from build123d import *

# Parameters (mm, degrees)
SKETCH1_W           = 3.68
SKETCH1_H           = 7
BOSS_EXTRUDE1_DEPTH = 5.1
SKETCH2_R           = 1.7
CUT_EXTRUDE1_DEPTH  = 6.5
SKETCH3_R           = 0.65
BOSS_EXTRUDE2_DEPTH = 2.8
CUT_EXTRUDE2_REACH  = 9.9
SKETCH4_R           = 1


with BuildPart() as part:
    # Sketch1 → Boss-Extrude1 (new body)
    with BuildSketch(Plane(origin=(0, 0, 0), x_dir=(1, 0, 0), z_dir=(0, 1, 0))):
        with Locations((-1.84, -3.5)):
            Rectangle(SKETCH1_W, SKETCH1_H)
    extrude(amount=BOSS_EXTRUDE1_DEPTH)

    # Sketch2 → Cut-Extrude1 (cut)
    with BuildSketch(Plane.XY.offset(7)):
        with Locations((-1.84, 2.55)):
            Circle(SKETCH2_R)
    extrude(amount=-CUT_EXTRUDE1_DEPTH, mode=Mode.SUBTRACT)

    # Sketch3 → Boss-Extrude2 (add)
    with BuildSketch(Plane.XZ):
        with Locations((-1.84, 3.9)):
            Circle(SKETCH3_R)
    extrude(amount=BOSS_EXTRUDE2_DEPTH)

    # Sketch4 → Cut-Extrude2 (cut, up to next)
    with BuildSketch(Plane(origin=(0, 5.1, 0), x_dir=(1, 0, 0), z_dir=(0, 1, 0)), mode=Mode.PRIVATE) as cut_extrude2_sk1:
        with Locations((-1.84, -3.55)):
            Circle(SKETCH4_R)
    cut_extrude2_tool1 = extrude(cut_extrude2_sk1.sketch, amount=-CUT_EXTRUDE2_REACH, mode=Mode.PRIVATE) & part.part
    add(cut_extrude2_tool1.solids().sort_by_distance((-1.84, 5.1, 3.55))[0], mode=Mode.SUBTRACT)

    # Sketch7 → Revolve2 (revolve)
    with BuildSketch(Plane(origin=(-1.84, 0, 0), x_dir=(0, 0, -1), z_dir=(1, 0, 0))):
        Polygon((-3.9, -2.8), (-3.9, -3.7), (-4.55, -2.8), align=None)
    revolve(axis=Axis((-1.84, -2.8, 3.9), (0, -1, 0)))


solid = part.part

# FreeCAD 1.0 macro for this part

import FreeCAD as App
import Part
import Sketcher
Q = App.Units.Quantity

doc = App.newDocument("Part")
body = doc.addObject("PartDesign::Body", "Body")

# Sketch on XZ plane
sketch1 = body.newObject("Sketcher::SketchObject", "Sketch")
sketch1.AttachmentSupport = (doc.getObject("XZ_Plane"), [""])
sketch1.MapMode = "FlatFace"
sketch1.addGeometry([
    Part.LineSegment(App.Vector(-3.7, 0, 0), App.Vector(-3.7, 7, 0)),
    Part.LineSegment(App.Vector(-3.7, 7, 0), App.Vector(0, 7, 0)),
    Part.LineSegment(App.Vector(0, 7, 0), App.Vector(0, 0, 0)),
    Part.LineSegment(App.Vector(0, 0, 0), App.Vector(-3.7, 0, 0)),
], False)
sketch1.addConstraint([
    Sketcher.Constraint("Coincident", 0, 2, 1, 1),
    Sketcher.Constraint("Coincident", 1, 2, 2, 1),
    Sketcher.Constraint("Coincident", 2, 2, 3, 1),
    Sketcher.Constraint("Coincident", 3, 2, 0, 1),
    Sketcher.Constraint("Vertical", 0),
    Sketcher.Constraint("Horizontal", 1),
    Sketcher.Constraint("Vertical", 2),
    Sketcher.Constraint("Horizontal", 3),
    Sketcher.Constraint("Coincident", 2, 2, -1, 1),
    Sketcher.Constraint("DistanceY", 0, 1, 0, 2, Q("7 mm")),
    Sketcher.Constraint("DistanceX", 1, 1, 1, 2, Q("3.68 mm")),
])
pad1 = body.newObject("PartDesign::Pad", "Pad")
pad1.Profile = sketch1
pad1.Length = 5.1
pad1.Reversed = True

# Sketch on XY plane
sketch2 = body.newObject("Sketcher::SketchObject", "Sketch001")
sketch2.AttachmentSupport = (doc.getObject("XY_Plane"), [""])
sketch2.MapMode = "FlatFace"
sketch2.AttachmentOffset = App.Placement(App.Vector(0, 0, 7), App.Rotation())
sketch2.addGeometry(Part.Circle(App.Vector(-1.8, 2.5, 0), App.Vector(0, 0, 1), 1.7), False)
sketch2.addConstraint([
    Sketcher.Constraint("Diameter", 0, Q("3.4 mm")),
    Sketcher.Constraint("DistanceX", 0, 3, -1, 1, Q("1.84 mm")),
    Sketcher.Constraint("DistanceY", -1, 1, 0, 3, Q("2.55 mm")),
])
pocket1 = body.newObject("PartDesign::Pocket", "Pocket")
pocket1.Profile = sketch2
pocket1.Length = 6.5

# Sketch on XZ plane
sketch3 = body.newObject("Sketcher::SketchObject", "Sketch002")
sketch3.AttachmentSupport = (doc.getObject("XZ_Plane"), [""])
sketch3.MapMode = "FlatFace"
sketch3.addGeometry(Part.Circle(App.Vector(-1.8, 3.9, 0), App.Vector(0, 0, 1), 0.7), False)
sketch3.addConstraint([
    Sketcher.Constraint("Diameter", 0, Q("1.3 mm")),
    Sketcher.Constraint("DistanceY", -1, 1, 0, 3, Q("3.9 mm")),
    Sketcher.Constraint("DistanceX", 0, 3, -1, 1, Q("1.84 mm")),
])
pad2 = body.newObject("PartDesign::Pad", "Pad001")
pad2.Profile = sketch3
pad2.Length = 2.8

# Sketch on XZ plane
sketch4 = body.newObject("Sketcher::SketchObject", "Sketch003")
sketch4.AttachmentSupport = (doc.getObject("XZ_Plane"), [""])
sketch4.MapMode = "FlatFace"
sketch4.AttachmentOffset = App.Placement(App.Vector(0, 0, -5.1), App.Rotation())
sketch4.addGeometry(Part.Circle(App.Vector(-1.8, 3.5, 0), App.Vector(0, 0, 1), 1), False)
sketch4.addConstraint([
    Sketcher.Constraint("Diameter", 0, Q("2 mm")),
    Sketcher.Constraint("DistanceX", 0, 3, -1, 1, Q("1.84 mm")),
    Sketcher.Constraint("DistanceY", -1, 1, 0, 3, Q("3.55 mm")),
])
pocket2 = body.newObject("PartDesign::Pocket", "Pocket001")
pocket2.Profile = sketch4
pocket2.Type = "UpToFirst"
pocket2.Reversed = True

# Sketch on YZ plane
sketch5 = body.newObject("Sketcher::SketchObject", "Sketch004")
sketch5.AttachmentSupport = (doc.getObject("YZ_Plane"), [""])
sketch5.MapMode = "FlatFace"
sketch5.AttachmentOffset = App.Placement(App.Vector(0, 0, -1.84), App.Rotation())
sketch5.addGeometry([
    Part.LineSegment(App.Vector(-3.7, 3.9, 0), App.Vector(-2.8, 3.9, 0)),
    Part.LineSegment(App.Vector(-2.8, 3.9, 0), App.Vector(-2.8, 4.5, 0)),
    Part.LineSegment(App.Vector(-2.8, 4.5, 0), App.Vector(-3.7, 3.9, 0)),
], False)
sketch5.addGeometry(Part.LineSegment(App.Vector(-2.8, 3.9, 0), App.Vector(-3.7, 3.9, 0)), True)  # axis
sketch5.addConstraint([
    Sketcher.Constraint("Coincident", 0, 2, 1, 1),
    Sketcher.Constraint("Coincident", 1, 2, 2, 1),
    Sketcher.Constraint("Coincident", 2, 2, 0, 1),
    Sketcher.Constraint("Horizontal", 0),
    Sketcher.Constraint("Vertical", 1),
    Sketcher.Constraint("Horizontal", 3),
    Sketcher.Constraint("Coincident", 3, 1, 0, 2),
    Sketcher.Constraint("Equal", 0, 3),
    Sketcher.Constraint("DistanceX", 0, 1, 0, 2, Q("0.9 mm")),
    Sketcher.Constraint("DistanceY", 1, 1, 1, 2, Q("0.65 mm")),
    Sketcher.Constraint("DistanceX", 0, 2, -1, 1, Q("2.8 mm")),
    Sketcher.Constraint("DistanceY", -1, 1, 0, 2, Q("3.9 mm")),
])
revolution = body.newObject("PartDesign::Revolution", "Revolution")
revolution.Profile = sketch5
revolution.ReferenceAxis = (sketch5, ["Axis0"])
revolution.Angle = 360

doc.recompute()
